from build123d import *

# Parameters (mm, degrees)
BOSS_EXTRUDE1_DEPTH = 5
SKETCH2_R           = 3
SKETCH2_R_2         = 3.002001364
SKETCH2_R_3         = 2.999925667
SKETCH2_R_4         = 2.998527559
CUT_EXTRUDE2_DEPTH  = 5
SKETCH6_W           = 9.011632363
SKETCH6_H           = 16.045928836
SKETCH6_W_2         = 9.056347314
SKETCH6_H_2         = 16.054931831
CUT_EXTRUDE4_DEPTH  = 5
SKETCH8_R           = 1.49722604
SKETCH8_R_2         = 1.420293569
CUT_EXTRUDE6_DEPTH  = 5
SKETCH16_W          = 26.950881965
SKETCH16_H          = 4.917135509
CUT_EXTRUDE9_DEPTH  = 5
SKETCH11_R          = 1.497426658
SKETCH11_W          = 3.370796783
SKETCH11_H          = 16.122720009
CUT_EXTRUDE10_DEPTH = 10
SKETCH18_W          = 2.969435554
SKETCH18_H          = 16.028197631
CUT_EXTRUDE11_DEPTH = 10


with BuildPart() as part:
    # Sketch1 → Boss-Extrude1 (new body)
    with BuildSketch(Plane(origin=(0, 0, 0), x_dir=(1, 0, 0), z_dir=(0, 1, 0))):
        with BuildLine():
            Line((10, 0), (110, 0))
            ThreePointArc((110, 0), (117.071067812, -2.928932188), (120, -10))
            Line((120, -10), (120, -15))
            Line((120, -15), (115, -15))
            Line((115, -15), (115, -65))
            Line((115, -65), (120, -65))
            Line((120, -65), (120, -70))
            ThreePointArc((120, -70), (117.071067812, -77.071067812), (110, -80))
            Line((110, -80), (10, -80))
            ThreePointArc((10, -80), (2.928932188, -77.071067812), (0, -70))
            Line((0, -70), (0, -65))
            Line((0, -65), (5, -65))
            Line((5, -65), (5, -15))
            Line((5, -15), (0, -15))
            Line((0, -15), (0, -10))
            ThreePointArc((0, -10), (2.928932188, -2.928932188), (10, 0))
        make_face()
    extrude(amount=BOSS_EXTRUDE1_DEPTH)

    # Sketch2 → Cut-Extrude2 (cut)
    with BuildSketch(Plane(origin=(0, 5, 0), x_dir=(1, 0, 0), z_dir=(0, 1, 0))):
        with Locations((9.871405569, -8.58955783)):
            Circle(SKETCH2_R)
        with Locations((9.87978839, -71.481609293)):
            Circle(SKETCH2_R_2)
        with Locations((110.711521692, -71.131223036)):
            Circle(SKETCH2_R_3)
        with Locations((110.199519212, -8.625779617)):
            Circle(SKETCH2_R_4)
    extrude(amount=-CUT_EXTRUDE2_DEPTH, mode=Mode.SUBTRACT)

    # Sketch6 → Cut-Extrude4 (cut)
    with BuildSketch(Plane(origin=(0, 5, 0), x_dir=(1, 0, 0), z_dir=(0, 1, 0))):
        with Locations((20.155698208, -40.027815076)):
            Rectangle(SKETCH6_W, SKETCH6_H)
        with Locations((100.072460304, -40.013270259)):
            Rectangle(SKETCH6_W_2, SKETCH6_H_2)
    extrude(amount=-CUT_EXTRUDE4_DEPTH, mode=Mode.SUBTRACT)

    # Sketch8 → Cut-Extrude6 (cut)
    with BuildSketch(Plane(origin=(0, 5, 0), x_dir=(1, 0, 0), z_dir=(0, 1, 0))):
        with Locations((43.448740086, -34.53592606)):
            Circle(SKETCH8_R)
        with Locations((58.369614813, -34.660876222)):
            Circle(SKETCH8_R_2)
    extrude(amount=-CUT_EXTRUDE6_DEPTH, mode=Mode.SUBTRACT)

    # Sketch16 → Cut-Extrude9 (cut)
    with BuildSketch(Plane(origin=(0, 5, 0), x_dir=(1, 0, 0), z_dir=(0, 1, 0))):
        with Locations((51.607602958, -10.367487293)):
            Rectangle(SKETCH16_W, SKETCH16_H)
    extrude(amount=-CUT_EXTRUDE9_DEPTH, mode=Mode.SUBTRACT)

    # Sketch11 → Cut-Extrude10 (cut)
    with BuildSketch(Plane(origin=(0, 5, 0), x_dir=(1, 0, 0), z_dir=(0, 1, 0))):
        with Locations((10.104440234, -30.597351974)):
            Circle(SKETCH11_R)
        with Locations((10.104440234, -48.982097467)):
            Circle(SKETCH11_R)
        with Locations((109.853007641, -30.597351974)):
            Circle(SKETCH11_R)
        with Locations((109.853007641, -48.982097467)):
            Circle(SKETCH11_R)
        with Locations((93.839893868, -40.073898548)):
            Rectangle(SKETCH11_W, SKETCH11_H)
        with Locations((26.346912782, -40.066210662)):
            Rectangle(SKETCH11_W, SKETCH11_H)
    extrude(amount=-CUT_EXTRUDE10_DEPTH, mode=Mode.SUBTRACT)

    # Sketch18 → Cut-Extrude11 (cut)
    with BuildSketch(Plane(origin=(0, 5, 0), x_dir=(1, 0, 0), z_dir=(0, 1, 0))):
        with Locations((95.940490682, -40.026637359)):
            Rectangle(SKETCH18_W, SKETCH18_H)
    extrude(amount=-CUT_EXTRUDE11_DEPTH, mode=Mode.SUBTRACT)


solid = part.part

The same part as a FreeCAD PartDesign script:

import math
import FreeCAD as App
import Part
import Sketcher
Q = App.Units.Quantity

doc = App.newDocument("Part")
body = doc.addObject("PartDesign::Body", "Body")

# Sketch on XZ plane
sketch1 = body.newObject("Sketcher::SketchObject", "Sketch")
sketch1.AttachmentSupport = (doc.getObject("XZ_Plane"), [""])
sketch1.MapMode = "FlatFace"
sketch1.addGeometry([
    Part.LineSegment(App.Vector(110, 0, 0), App.Vector(10, 0, 0)),  # 0
    Part.ArcOfCircle(Part.Circle(App.Vector(10, 10, 0), App.Vector(0, 0, 1), 10), math.radians(180), math.radians(270)),  # 1
    Part.LineSegment(App.Vector(0, 10, 0), App.Vector(0, 15, 0)),  # 2
    Part.LineSegment(App.Vector(0, 15, 0), App.Vector(5, 15, 0)),  # 3
    Part.LineSegment(App.Vector(5, 15, 0), App.Vector(5, 65, 0)),  # 4
    Part.LineSegment(App.Vector(5, 65, 0), App.Vector(0, 65, 0)),  # 5
    Part.LineSegment(App.Vector(0, 65, 0), App.Vector(0, 70, 0)),  # 6
    Part.ArcOfCircle(Part.Circle(App.Vector(10, 70, 0), App.Vector(0, 0, 1), 10), math.radians(90), math.radians(180)),  # 7
    Part.LineSegment(App.Vector(10, 80, 0), App.Vector(110, 80, 0)),  # 8
    Part.ArcOfCircle(Part.Circle(App.Vector(110, 70, 0), App.Vector(0, 0, 1), 10), math.radians(0), math.radians(90)),  # 9
    Part.LineSegment(App.Vector(120, 70, 0), App.Vector(120, 65, 0)),  # 10
    Part.LineSegment(App.Vector(120, 65, 0), App.Vector(115, 65, 0)),  # 11
    Part.LineSegment(App.Vector(115, 65, 0), App.Vector(115, 15, 0)),  # 12
    Part.LineSegment(App.Vector(115, 15, 0), App.Vector(120, 15, 0)),  # 13
    Part.LineSegment(App.Vector(120, 15, 0), App.Vector(120, 10, 0)),  # 14
    Part.ArcOfCircle(Part.Circle(App.Vector(110, 10, 0), App.Vector(0, 0, 1), 10), math.radians(-90), math.radians(0)),  # 15
], False)
sketch1.addConstraint([
    Sketcher.Constraint("Tangent", 0, 2, 1, 2),
    Sketcher.Constraint("Tangent", 1, 1, 2, 1),
    Sketcher.Constraint("Coincident", 2, 2, 3, 1),
    Sketcher.Constraint("Coincident", 3, 2, 4, 1),
    Sketcher.Constraint("Coincident", 4, 2, 5, 1),
    Sketcher.Constraint("Coincident", 5, 2, 6, 1),
    Sketcher.Constraint("Tangent", 6, 2, 7, 2),
    Sketcher.Constraint("Tangent", 7, 1, 8, 1),
    Sketcher.Constraint("Tangent", 8, 2, 9, 2),
    Sketcher.Constraint("Tangent", 9, 1, 10, 1),
    Sketcher.Constraint("Coincident", 10, 2, 11, 1),
    Sketcher.Constraint("Coincident", 11, 2, 12, 1),
    Sketcher.Constraint("Coincident", 12, 2, 13, 1),
    Sketcher.Constraint("Coincident", 13, 2, 14, 1),
    Sketcher.Constraint("Tangent", 14, 2, 15, 2),
    Sketcher.Constraint("Tangent", 15, 1, 0, 1),
    Sketcher.Constraint("Horizontal", 0),
    Sketcher.Constraint("Vertical", 2),
    Sketcher.Constraint("Horizontal", 3),
    Sketcher.Constraint("Vertical", 4),
    Sketcher.Constraint("Horizontal", 5),
    Sketcher.Constraint("Vertical", 6),
    Sketcher.Constraint("Horizontal", 8),
    Sketcher.Constraint("Vertical", 10),
    Sketcher.Constraint("Horizontal", 11),
    Sketcher.Constraint("Vertical", 12),
    Sketcher.Constraint("Horizontal", 13),
    Sketcher.Constraint("Vertical", 14),
    Sketcher.Constraint("Equal", 1, 7),
    Sketcher.Constraint("Equal", 7, 9),
    Sketcher.Constraint("Equal", 9, 15),
    Sketcher.Constraint("PointOnObject", 0, 2, -1),
    Sketcher.Constraint("PointOnObject", 1, 1, -2),
    Sketcher.Constraint("PointOnObject", 5, 2, -2),
    Sketcher.Constraint("Horizontal", 5, 2, 10, 2),
    Sketcher.Constraint("Horizontal", 3, 2, 12, 2),
    Sketcher.Constraint("Vertical", 9, 3, 15, 3),
    Sketcher.Constraint("Equal", 5, 11),
    Sketcher.Constraint("Equal", 13, 2),
    Sketcher.Constraint("Equal", 2, 6),
    Sketcher.Constraint("Radius", 1, Q("10 mm")),
    Sketcher.Constraint("DistanceX", 0, 2, 0, 1, Q("100 mm")),
    Sketcher.Constraint("DistanceX", 3, 1, 3, 2, Q("5 mm")),
    Sketcher.Constraint("DistanceY", 4, 1, 4, 2, Q("50 mm")),
])
pad1 = body.newObject("PartDesign::Pad", "Pad")
pad1.Profile = sketch1
pad1.Length = 5
pad1.Reversed = True

# Sketch on XZ plane
sketch2 = body.newObject("Sketcher::SketchObject", "Sketch001")
sketch2.AttachmentSupport = (doc.getObject("XZ_Plane"), [""])
sketch2.MapMode = "FlatFace"
sketch2.AttachmentOffset = App.Placement(App.Vector(0, 0, -5), App.Rotation())
sketch2.addGeometry([
    Part.Circle(App.Vector(9.9, 8.6, 0), App.Vector(0, 0, 1), 3),
    Part.Circle(App.Vector(9.9, 71.5, 0), App.Vector(0, 0, 1), 3),
    Part.Circle(App.Vector(110.7, 71.1, 0), App.Vector(0, 0, 1), 3),
    Part.Circle(App.Vector(110.2, 8.6, 0), App.Vector(0, 0, 1), 3),
], False)
sketch2.addConstraint([
    Sketcher.Constraint("Diameter", 0, Q("6 mm")),
    Sketcher.Constraint("Diameter", 2, Q("5.999851 mm")),
    Sketcher.Constraint("Diameter", 1, Q("6.004003 mm")),
    Sketcher.Constraint("Diameter", 3, Q("5.997055 mm")),
    Sketcher.Constraint("DistanceX", -1, 1, 1, 3, Q("9.879788 mm")),
    Sketcher.Constraint("DistanceY", -1, 1, 1, 3, Q("71.481609 mm")),
    Sketcher.Constraint("DistanceX", -1, 1, 2, 3, Q("110.711522 mm")),
    Sketcher.Constraint("DistanceX", -1, 1, 3, 3, Q("110.199519 mm")),
    Sketcher.Constraint("DistanceY", -1, 1, 3, 3, Q("8.62578 mm")),
    Sketcher.Constraint("DistanceY", 0, 3, 1, 3, Q("62.892051 mm")),
    Sketcher.Constraint("DistanceX", -1, 1, 0, 3, Q("9.871406 mm")),
    Sketcher.Constraint("DistanceY", -1, 1, 2, 3, Q("71.131223 mm")),
])
pocket1 = body.newObject("PartDesign::Pocket", "Pocket")
pocket1.Profile = sketch2
pocket1.Length = 5
pocket1.Reversed = True

# Sketch on XZ plane
sketch3 = body.newObject("Sketcher::SketchObject", "Sketch002")
sketch3.AttachmentSupport = (doc.getObject("XZ_Plane"), [""])
sketch3.MapMode = "FlatFace"
sketch3.AttachmentOffset = App.Placement(App.Vector(0, 0, -5), App.Rotation())
sketch3.addGeometry([
    Part.LineSegment(App.Vector(16, 32, 0), App.Vector(16, 48, 0)),  # 0
    Part.LineSegment(App.Vector(16, 48, 0), App.Vector(25, 48, 0)),  # 1
    Part.LineSegment(App.Vector(25, 48, 0), App.Vector(25, 32, 0)),  # 2
    Part.LineSegment(App.Vector(25, 32, 0), App.Vector(16, 32, 0)),  # 3
    Part.LineSegment(App.Vector(96, 32, 0), App.Vector(96, 48, 0)),  # 4
    Part.LineSegment(App.Vector(96, 48, 0), App.Vector(105, 48, 0)),  # 5
    Part.LineSegment(App.Vector(105, 48, 0), App.Vector(105, 32, 0)),  # 6
    Part.LineSegment(App.Vector(105, 32, 0), App.Vector(96, 32, 0)),  # 7
], False)
sketch3.addConstraint([
    Sketcher.Constraint("Coincident", 0, 2, 1, 1),
    Sketcher.Constraint("Coincident", 1, 2, 2, 1),
    Sketcher.Constraint("Coincident", 2, 2, 3, 1),
    Sketcher.Constraint("Coincident", 3, 2, 0, 1),
    Sketcher.Constraint("Coincident", 4, 2, 5, 1),
    Sketcher.Constraint("Coincident", 5, 2, 6, 1),
    Sketcher.Constraint("Coincident", 6, 2, 7, 1),
    Sketcher.Constraint("Coincident", 7, 2, 4, 1),
    Sketcher.Constraint("Vertical", 0),
    Sketcher.Constraint("Horizontal", 1),
    Sketcher.Constraint("Vertical", 2),
    Sketcher.Constraint("Horizontal", 3),
    Sketcher.Constraint("Vertical", 4),
    Sketcher.Constraint("Horizontal", 5),
    Sketcher.Constraint("Vertical", 6),
    Sketcher.Constraint("Horizontal", 7),
    Sketcher.Constraint("DistanceY", 0, 1, 0, 2, Q("16.045929 mm")),
    Sketcher.Constraint("DistanceY", 4, 1, 4, 2, Q("16.054932 mm")),
    Sketcher.Constraint("DistanceX", 1, 1, 1, 2, Q("9.011632 mm")),
    Sketcher.Constraint("DistanceX", 5, 1, 5, 2, Q("9.056347 mm")),
    Sketcher.Constraint("DistanceY", -1, 1, 0, 2, Q("48.050779 mm")),
    Sketcher.Constraint("DistanceX", 1, 2, 5, 2, Q("79.93912 mm")),
    Sketcher.Constraint("DistanceX", -1, 1, 0, 2, Q("15.649882 mm")),
    Sketcher.Constraint("DistanceY", -1, 1, 4, 2, Q("48.040736 mm")),
])
pocket2 = body.newObject("PartDesign::Pocket", "Pocket001")
pocket2.Profile = sketch3
pocket2.Length = 5
pocket2.Reversed = True

# Sketch on XZ plane
sketch4 = body.newObject("Sketcher::SketchObject", "Sketch003")
sketch4.AttachmentSupport = (doc.getObject("XZ_Plane"), [""])
sketch4.MapMode = "FlatFace"
sketch4.AttachmentOffset = App.Placement(App.Vector(0, 0, -5), App.Rotation())
sketch4.addGeometry([
    Part.Circle(App.Vector(43.4, 34.5, 0), App.Vector(0, 0, 1), 1.5),
    Part.Circle(App.Vector(58.4, 34.7, 0), App.Vector(0, 0, 1), 1.4),
], False)
sketch4.addConstraint([
    Sketcher.Constraint("Diameter", 0, Q("2.994452 mm")),
    Sketcher.Constraint("Diameter", 1, Q("2.840587 mm")),
    Sketcher.Constraint("DistanceX", -1, 1, 0, 3, Q("43.44874 mm")),
    Sketcher.Constraint("DistanceY", 0, 3, 1, 3, Q("0.12495 mm")),
    Sketcher.Constraint("DistanceY", -1, 1, 0, 3, Q("34.535926 mm")),
    Sketcher.Constraint("DistanceX", -1, 1, 1, 3, Q("58.369615 mm")),
])
pocket3 = body.newObject("PartDesign::Pocket", "Pocket002")
pocket3.Profile = sketch4
pocket3.Length = 5
pocket3.Reversed = True

# Sketch on XZ plane
sketch5 = body.newObject("Sketcher::SketchObject", "Sketch004")
sketch5.AttachmentSupport = (doc.getObject("XZ_Plane"), [""])
sketch5.MapMode = "FlatFace"
sketch5.AttachmentOffset = App.Placement(App.Vector(0, 0, -5), App.Rotation())
sketch5.addGeometry([
    Part.LineSegment(App.Vector(38.1, 7.9, 0), App.Vector(38.1, 12.8, 0)),
    Part.LineSegment(App.Vector(38.1, 12.8, 0), App.Vector(65.1, 12.8, 0)),
    Part.LineSegment(App.Vector(65.1, 12.8, 0), App.Vector(65.1, 7.9, 0)),
    Part.LineSegment(App.Vector(65.1, 7.9, 0), App.Vector(38.1, 7.9, 0)),
], False)
sketch5.addConstraint([
    Sketcher.Constraint("Coincident", 0, 2, 1, 1),
    Sketcher.Constraint("Coincident", 1, 2, 2, 1),
    Sketcher.Constraint("Coincident", 2, 2, 3, 1),
    Sketcher.Constraint("Coincident", 3, 2, 0, 1),
    Sketcher.Constraint("Vertical", 0),
    Sketcher.Constraint("Horizontal", 1),
    Sketcher.Constraint("Vertical", 2),
    Sketcher.Constraint("Horizontal", 3),
    Sketcher.Constraint("DistanceX", 1, 1, 1, 2, Q("26.950882 mm")),
    Sketcher.Constraint("DistanceY", 0, 1, 0, 2, Q("4.917136 mm")),
    Sketcher.Constraint("DistanceX", -1, 1, 0, 2, Q("38.132162 mm")),
    Sketcher.Constraint("DistanceY", -1, 1, 2, 2, Q("7.90892 mm")),
])
pocket4 = body.newObject("PartDesign::Pocket", "Pocket003")
pocket4.Profile = sketch5
pocket4.Length = 5
pocket4.Reversed = True

# Sketch on XZ plane
sketch6 = body.newObject("Sketcher::SketchObject", "Sketch005")
sketch6.AttachmentSupport = (doc.getObject("XZ_Plane"), [""])
sketch6.MapMode = "FlatFace"
sketch6.AttachmentOffset = App.Placement(App.Vector(0, 0, -5), App.Rotation())
sketch6.addGeometry([
    Part.Circle(App.Vector(10.1, 30.6, 0), App.Vector(0, 0, 1), 1.5),  # 0
    Part.Circle(App.Vector(10.1, 49, 0), App.Vector(0, 0, 1), 1.5),  # 1
    Part.Circle(App.Vector(109.9, 30.6, 0), App.Vector(0, 0, 1), 1.5),  # 2
    Part.Circle(App.Vector(109.9, 49, 0), App.Vector(0, 0, 1), 1.5),  # 3
    Part.LineSegment(App.Vector(92.2, 32, 0), App.Vector(92.2, 48.1, 0)),  # 4
    Part.LineSegment(App.Vector(92.2, 48.1, 0), App.Vector(95.5, 48.1, 0)),  # 5
    Part.LineSegment(App.Vector(95.5, 48.1, 0), App.Vector(95.5, 32, 0)),  # 6
    Part.LineSegment(App.Vector(95.5, 32, 0), App.Vector(92.2, 32, 0)),  # 7
    Part.LineSegment(App.Vector(24.7, 32, 0), App.Vector(24.7, 48.1, 0)),  # 8
    Part.LineSegment(App.Vector(24.7, 48.1, 0), App.Vector(28, 48.1, 0)),  # 9
    Part.LineSegment(App.Vector(28, 48.1, 0), App.Vector(28, 32, 0)),  # 10
    Part.LineSegment(App.Vector(28, 32, 0), App.Vector(24.7, 32, 0)),  # 11
], False)
sketch6.addConstraint([
    Sketcher.Constraint("Coincident", 4, 2, 5, 1),
    Sketcher.Constraint("Coincident", 5, 2, 6, 1),
    Sketcher.Constraint("Coincident", 6, 2, 7, 1),
    Sketcher.Constraint("Coincident", 7, 2, 4, 1),
    Sketcher.Constraint("Coincident", 8, 2, 9, 1),
    Sketcher.Constraint("Coincident", 9, 2, 10, 1),
    Sketcher.Constraint("Coincident", 10, 2, 11, 1),
    Sketcher.Constraint("Coincident", 11, 2, 8, 1),
    Sketcher.Constraint("Vertical", 4),
    Sketcher.Constraint("Horizontal", 5),
    Sketcher.Constraint("Vertical", 6),
    Sketcher.Constraint("Horizontal", 7),
    Sketcher.Constraint("Vertical", 8),
    Sketcher.Constraint("Horizontal", 9),
    Sketcher.Constraint("Vertical", 10),
    Sketcher.Constraint("Horizontal", 11),
    Sketcher.Constraint("Equal", 0, 1),
    Sketcher.Constraint("Equal", 1, 2),
    Sketcher.Constraint("Equal", 2, 3),
    Sketcher.Constraint("Horizontal", 0, 3, 2, 3),
    Sketcher.Constraint("Horizontal", 1, 3, 3, 3),
    Sketcher.Constraint("Vertical", 0, 3, 1, 3),
    Sketcher.Constraint("Vertical", 2, 3, 3, 3),
    Sketcher.Constraint("Equal", 7, 9),
    Sketcher.Constraint("Equal", 6, 8),
    Sketcher.Constraint("Diameter", 0, Q("2.994853 mm")),
    Sketcher.Constraint("DistanceY", 4, 1, 4, 2, Q("16.12272 mm")),
    Sketcher.Constraint("DistanceY", 0, 3, 10, 2, Q("1.407499 mm")),
    Sketcher.Constraint("DistanceX", 5, 1, 5, 2, Q("3.370797 mm")),
    Sketcher.Constraint("DistanceX", -1, 1, 0, 3, Q("10.10444 mm")),
    Sketcher.Constraint("DistanceY", -1, 1, 0, 3, Q("30.597352 mm")),
    Sketcher.Constraint("DistanceY", -1, 1, 4, 2, Q("48.135259 mm")),
    Sketcher.Constraint("DistanceX", -1, 1, 9, 2, Q("28.032311 mm")),
    Sketcher.Constraint("DistanceY", 4, 2, 3, 3, Q("0.846839 mm")),
    Sketcher.Constraint("DistanceX", 8, 2, 4, 2, Q("67.492981 mm")),
    Sketcher.Constraint("DistanceX", -1, 1, 2, 3, Q("109.853008 mm")),
])
pocket5 = body.newObject("PartDesign::Pocket", "Pocket004")
pocket5.Profile = sketch6
pocket5.Length = 10
pocket5.Reversed = True

# Sketch on XZ plane
sketch7 = body.newObject("Sketcher::SketchObject", "Sketch006")
sketch7.AttachmentSupport = (doc.getObject("XZ_Plane"), [""])
sketch7.MapMode = "FlatFace"
sketch7.AttachmentOffset = App.Placement(App.Vector(0, 0, -5), App.Rotation())
sketch7.addGeometry([
    Part.LineSegment(App.Vector(94.5, 32, 0), App.Vector(94.5, 48, 0)),
    Part.LineSegment(App.Vector(94.5, 48, 0), App.Vector(97.4, 48, 0)),
    Part.LineSegment(App.Vector(97.4, 48, 0), App.Vector(97.4, 32, 0)),
    Part.LineSegment(App.Vector(97.4, 32, 0), App.Vector(94.5, 32, 0)),
], False)
sketch7.addConstraint([
    Sketcher.Constraint("Coincident", 0, 2, 1, 1),
    Sketcher.Constraint("Coincident", 1, 2, 2, 1),
    Sketcher.Constraint("Coincident", 2, 2, 3, 1),
    Sketcher.Constraint("Coincident", 3, 2, 0, 1),
    Sketcher.Constraint("Vertical", 0),
    Sketcher.Constraint("Horizontal", 1),
    Sketcher.Constraint("Vertical", 2),
    Sketcher.Constraint("Horizontal", 3),
    Sketcher.Constraint("DistanceX", 1, 1, 1, 2, Q("2.969436 mm")),
    Sketcher.Constraint("DistanceY", 0, 1, 0, 2, Q("16.028198 mm")),
    Sketcher.Constraint("DistanceX", -1, 1, 1, 2, Q("97.425208 mm")),
    Sketcher.Constraint("DistanceY", -1, 1, 2, 2, Q("32.012539 mm")),
])
pocket6 = body.newObject("PartDesign::Pocket", "Pocket005")
pocket6.Profile = sketch7
pocket6.Length = 10
pocket6.Reversed = True

doc.recompute()
